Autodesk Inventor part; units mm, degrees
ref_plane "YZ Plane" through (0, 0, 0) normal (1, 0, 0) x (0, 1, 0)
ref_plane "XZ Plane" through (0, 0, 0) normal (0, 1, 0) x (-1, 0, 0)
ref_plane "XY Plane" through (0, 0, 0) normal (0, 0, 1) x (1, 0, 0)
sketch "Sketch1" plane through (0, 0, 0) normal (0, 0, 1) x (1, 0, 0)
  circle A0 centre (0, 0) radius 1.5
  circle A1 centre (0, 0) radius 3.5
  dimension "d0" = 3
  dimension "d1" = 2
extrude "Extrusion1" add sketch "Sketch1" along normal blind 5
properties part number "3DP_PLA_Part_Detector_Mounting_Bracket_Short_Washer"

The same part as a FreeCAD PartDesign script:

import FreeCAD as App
import Part
import Sketcher

V = App.Vector

doc = App.newDocument("Part")
body = doc.addObject("PartDesign::Body", "Body")

# Sketch on XY plane
sketch1 = body.newObject("Sketcher::SketchObject", "Sketch")
sketch1.AttachmentSupport = (doc.getObject("XY_Plane"), [""])
sketch1.MapMode = "FlatFace"
sketch1.addGeometry([
    Part.Circle(V(0, 0, 0), V(0, 0, 1), 3.5),
    Part.Circle(V(0, 0, 0), V(0, 0, 1), 1.5),
], False)
sketch1.addConstraint([
    Sketcher.Constraint("Coincident", 0, 3, -1, 1),
    Sketcher.Constraint("Coincident", 1, 3, -1, 1),
    Sketcher.Constraint("Diameter", 1, 3.0),
    Sketcher.Constraint("Diameter", 0, 7.0),
])
pad1 = body.newObject("PartDesign::Pad", "Pad")
pad1.Profile = sketch1
pad1.Length = 5

doc.recompute()
